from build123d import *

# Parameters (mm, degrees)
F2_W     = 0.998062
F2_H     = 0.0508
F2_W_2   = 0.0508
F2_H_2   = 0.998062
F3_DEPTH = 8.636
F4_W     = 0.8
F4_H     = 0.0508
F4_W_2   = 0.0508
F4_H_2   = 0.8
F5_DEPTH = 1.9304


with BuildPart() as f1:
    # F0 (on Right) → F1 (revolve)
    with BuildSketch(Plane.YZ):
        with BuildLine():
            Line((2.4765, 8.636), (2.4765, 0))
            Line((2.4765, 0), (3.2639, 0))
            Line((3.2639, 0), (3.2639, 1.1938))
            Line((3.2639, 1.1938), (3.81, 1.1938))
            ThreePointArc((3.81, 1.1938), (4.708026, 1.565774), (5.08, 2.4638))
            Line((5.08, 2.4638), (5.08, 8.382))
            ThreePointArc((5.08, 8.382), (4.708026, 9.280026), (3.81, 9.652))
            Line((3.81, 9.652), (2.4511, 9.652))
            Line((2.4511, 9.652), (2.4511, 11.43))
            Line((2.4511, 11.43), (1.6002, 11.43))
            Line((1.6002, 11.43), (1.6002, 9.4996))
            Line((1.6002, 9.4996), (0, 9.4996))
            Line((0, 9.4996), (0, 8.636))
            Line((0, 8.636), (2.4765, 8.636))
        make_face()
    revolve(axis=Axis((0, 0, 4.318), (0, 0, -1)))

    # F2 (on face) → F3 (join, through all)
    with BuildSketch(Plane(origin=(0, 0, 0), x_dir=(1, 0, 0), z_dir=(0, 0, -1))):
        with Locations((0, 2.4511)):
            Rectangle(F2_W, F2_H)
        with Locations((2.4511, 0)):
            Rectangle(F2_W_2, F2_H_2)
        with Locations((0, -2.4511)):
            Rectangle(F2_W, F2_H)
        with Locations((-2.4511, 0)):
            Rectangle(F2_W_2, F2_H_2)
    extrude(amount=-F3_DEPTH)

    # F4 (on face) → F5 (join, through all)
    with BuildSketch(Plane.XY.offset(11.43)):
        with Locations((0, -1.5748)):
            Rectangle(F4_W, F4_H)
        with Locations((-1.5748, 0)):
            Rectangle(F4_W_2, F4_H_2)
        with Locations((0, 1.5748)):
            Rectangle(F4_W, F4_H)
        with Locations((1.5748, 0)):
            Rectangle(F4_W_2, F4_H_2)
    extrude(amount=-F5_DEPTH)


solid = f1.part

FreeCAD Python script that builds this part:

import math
import FreeCAD as App
import Part
import Sketcher
from FreeCAD import Vector
Q = App.Units.Quantity


def add_polygon(sketch, points):
    """Adds a closed chain of lines whose ends are joined by coincident constraints."""
    first, n = sketch.GeometryCount, len(points)
    for a, b in zip(points, points[1:] + points[:1]):
        sketch.addGeometry(Part.LineSegment(App.Vector(*a, 0), App.Vector(*b, 0)), False)
    for i in range(n):
        sketch.addConstraint(Sketcher.Constraint("Coincident", first + i, 2, first + (i + 1) % n, 1))

doc = App.newDocument("Part")
body = doc.addObject("PartDesign::Body", "Body")

sketch1 = body.newObject("Sketcher::SketchObject", "Sketch")
sketch1.AttachmentSupport = (doc.getObject("YZ_Plane"), [""])
sketch1.MapMode = "FlatFace"
sketch1.addGeometry(Part.LineSegment(Vector(2.5, 8.6, 0), Vector(2.5, 0, 0)), False)
sketch1.addGeometry(Part.LineSegment(Vector(2.5, 0, 0), Vector(3.3, 0, 0)), False)
sketch1.addGeometry(Part.LineSegment(Vector(3.3, 0, 0), Vector(3.3, 1.2, 0)), False)
sketch1.addGeometry(Part.LineSegment(Vector(3.3, 1.2, 0), Vector(3.8, 1.2, 0)), False)
sketch1.addGeometry(Part.ArcOfCircle(Part.Circle(Vector(3.8, 2.5, 0), Vector(0, 0, 1), 1.3), math.radians(-90), math.radians(0)), False)
sketch1.addGeometry(Part.LineSegment(Vector(5.1, 2.5, 0), Vector(5.1, 8.4, 0)), False)
sketch1.addGeometry(Part.ArcOfCircle(Part.Circle(Vector(3.8, 8.4, 0), Vector(0, 0, 1), 1.3), math.radians(0), math.radians(90)), False)
sketch1.addGeometry(Part.LineSegment(Vector(3.8, 9.7, 0), Vector(2.5, 9.7, 0)), False)
sketch1.addGeometry(Part.LineSegment(Vector(2.5, 9.7, 0), Vector(2.5, 11.4, 0)), False)
sketch1.addGeometry(Part.LineSegment(Vector(2.5, 11.4, 0), Vector(1.6, 11.4, 0)), False)
sketch1.addGeometry(Part.LineSegment(Vector(1.6, 11.4, 0), Vector(1.6, 9.5, 0)), False)
sketch1.addGeometry(Part.LineSegment(Vector(1.6, 9.5, 0), Vector(0, 9.5, 0)), False)
sketch1.addGeometry(Part.LineSegment(Vector(0, 9.5, 0), Vector(0, 8.6, 0)), False)
sketch1.addGeometry(Part.LineSegment(Vector(0, 8.6, 0), Vector(2.5, 8.6, 0)), False)
sketch1.addConstraint(Sketcher.Constraint("Coincident", 0, 2, 1, 1))
sketch1.addConstraint(Sketcher.Constraint("Coincident", 1, 2, 2, 1))
sketch1.addConstraint(Sketcher.Constraint("Coincident", 2, 2, 3, 1))
sketch1.addConstraint(Sketcher.Constraint("Tangent", 3, 2, 4, 1))
sketch1.addConstraint(Sketcher.Constraint("Tangent", 4, 2, 5, 1))
sketch1.addConstraint(Sketcher.Constraint("Tangent", 5, 2, 6, 1))
sketch1.addConstraint(Sketcher.Constraint("Tangent", 6, 2, 7, 1))
sketch1.addConstraint(Sketcher.Constraint("Coincident", 7, 2, 8, 1))
sketch1.addConstraint(Sketcher.Constraint("Coincident", 8, 2, 9, 1))
sketch1.addConstraint(Sketcher.Constraint("Coincident", 9, 2, 10, 1))
sketch1.addConstraint(Sketcher.Constraint("Coincident", 10, 2, 11, 1))
sketch1.addConstraint(Sketcher.Constraint("Coincident", 11, 2, 12, 1))
sketch1.addConstraint(Sketcher.Constraint("Coincident", 12, 2, 13, 1))
sketch1.addConstraint(Sketcher.Constraint("Coincident", 13, 2, 0, 1))
sketch1.addConstraint(Sketcher.Constraint("Vertical", 0))
sketch1.addConstraint(Sketcher.Constraint("Horizontal", 1))
sketch1.addConstraint(Sketcher.Constraint("Vertical", 2))
sketch1.addConstraint(Sketcher.Constraint("Horizontal", 3))
sketch1.addConstraint(Sketcher.Constraint("Vertical", 5))
sketch1.addConstraint(Sketcher.Constraint("Horizontal", 7))
sketch1.addConstraint(Sketcher.Constraint("Vertical", 8))
sketch1.addConstraint(Sketcher.Constraint("Horizontal", 9))
sketch1.addConstraint(Sketcher.Constraint("Vertical", 10))
sketch1.addConstraint(Sketcher.Constraint("Horizontal", 11))
sketch1.addConstraint(Sketcher.Constraint("Vertical", 12))
sketch1.addConstraint(Sketcher.Constraint("Horizontal", 13))
sketch1.addConstraint(Sketcher.Constraint("Equal", 4, 6))
sketch1.addConstraint(Sketcher.Constraint("PointOnObject", 0, 2, -1))
sketch1.addConstraint(Sketcher.Constraint("PointOnObject", 11, 2, -2))
sketch1.addConstraint(Sketcher.Constraint("Radius", 4, Q("0.0499999 in")))
sketch1.addConstraint(Sketcher.Constraint("DistanceY", 0, 2, 0, 1, Q("0.34 in")))
sketch1.addConstraint(Sketcher.Constraint("DistanceY", 8, 1, 8, 2, Q("0.07 in")))
sketch1.addConstraint(Sketcher.Constraint("DistanceX", -1, 1, 4, 2, Q("0.2 in")))
sketch1.addConstraint(Sketcher.Constraint("DistanceX", 1, 1, 1, 2, Q("0.031 in")))
sketch1.addConstraint(Sketcher.Constraint("DistanceX", 11, 2, 11, 1, Q("0.063 in")))
sketch1.addConstraint(Sketcher.Constraint("DistanceY", 2, 1, 2, 2, Q("0.047 in")))
sketch1.addConstraint(Sketcher.Constraint("DistanceY", 5, 1, 5, 2, Q("0.233 in")))
sketch1.addConstraint(Sketcher.Constraint("DistanceY", 10, 2, 10, 1, Q("0.076 in")))
sketch1.addConstraint(Sketcher.Constraint("DistanceX", 3, 1, 3, 2, Q("0.0215 in")))
sketch1.addConstraint(Sketcher.Constraint("DistanceX", 7, 2, 7, 1, Q("0.0535 in")))
revolution = body.newObject("PartDesign::Revolution", "Revolution")
revolution.Profile = sketch1
revolution.ReferenceAxis = (sketch1, ["V_Axis"])
revolution.Angle = 360

sketch2 = body.newObject("Sketcher::SketchObject", "Sketch001")
sketch2.AttachmentSupport = (doc.getObject("XY_Plane"), [""])
sketch2.MapMode = "FlatFace"
add_polygon(sketch2, [(-0.5, -2.48), (-0.5, -2.43), (0.5, -2.43), (0.5, -2.48)])
add_polygon(sketch2, [(2.43, -0.5), (2.43, 0.5), (2.48, 0.5), (2.48, -0.5)])
add_polygon(sketch2, [(-0.5, 2.43), (-0.5, 2.48), (0.5, 2.48), (0.5, 2.43)])
add_polygon(sketch2, [(-2.48, -0.5), (-2.48, 0.5), (-2.43, 0.5), (-2.43, -0.5)])
sketch2.addConstraint(Sketcher.Constraint("Vertical", 0))
sketch2.addConstraint(Sketcher.Constraint("Horizontal", 1))
sketch2.addConstraint(Sketcher.Constraint("Vertical", 2))
sketch2.addConstraint(Sketcher.Constraint("Horizontal", 3))
sketch2.addConstraint(Sketcher.Constraint("Vertical", 4))
sketch2.addConstraint(Sketcher.Constraint("Horizontal", 5))
sketch2.addConstraint(Sketcher.Constraint("Vertical", 6))
sketch2.addConstraint(Sketcher.Constraint("Horizontal", 7))
sketch2.addConstraint(Sketcher.Constraint("Vertical", 8))
sketch2.addConstraint(Sketcher.Constraint("Horizontal", 9))
sketch2.addConstraint(Sketcher.Constraint("Vertical", 10))
sketch2.addConstraint(Sketcher.Constraint("Horizontal", 11))
sketch2.addConstraint(Sketcher.Constraint("Vertical", 12))
sketch2.addConstraint(Sketcher.Constraint("Horizontal", 13))
sketch2.addConstraint(Sketcher.Constraint("Vertical", 14))
sketch2.addConstraint(Sketcher.Constraint("Horizontal", 15))
sketch2.addConstraint(Sketcher.Constraint("Symmetric", 2, 2, 8, 2, -1, 1))
sketch2.addConstraint(Sketcher.Constraint("Symmetric", 0, 2, 10, 2, -1, 1))
sketch2.addConstraint(Sketcher.Constraint("Symmetric", 6, 2, 12, 2, -1, 1))
sketch2.addConstraint(Sketcher.Constraint("Symmetric", 4, 2, 14, 2, -1, 1))
sketch2.addConstraint(Sketcher.Constraint("Horizontal", 5, 2, 12, 2))
sketch2.addConstraint(Sketcher.Constraint("Vertical", 3, 2, 8, 2))
sketch2.addConstraint(Sketcher.Constraint("Equal", 15, 0))
sketch2.addConstraint(Sketcher.Constraint("Equal", 11, 4))
sketch2.addConstraint(Sketcher.Constraint("DistanceX", 5, 1, 5, 2, Q("0.002 in")))
sketch2.addConstraint(Sketcher.Constraint("DistanceY", 0, 2, 8, 2, Q("0.193 in")))
sketch2.addConstraint(Sketcher.Constraint("DistanceX", -1, 1, 4, 2, Q("0.0955 in")))
sketch2.addConstraint(Sketcher.Constraint("DistanceX", 1, 1, 1, 2, Q("0.998062 mm")))
pad1 = body.newObject("PartDesign::Pad", "Pad")
pad1.Profile = sketch2
pad1.Type = "UpToLast"

sketch3 = body.newObject("Sketcher::SketchObject", "Sketch002")
sketch3.AttachmentSupport = (doc.getObject("XY_Plane"), [""])
sketch3.MapMode = "FlatFace"
sketch3.AttachmentOffset = App.Placement(Vector(0, 0, 0.45 * 25.4), App.Rotation())
add_polygon(sketch3, [(-0.4, -1.55), (-0.4, -1.6), (0.4, -1.6), (0.4, -1.55)])
add_polygon(sketch3, [(-1.6, 0.4), (-1.6, -0.4), (-1.55, -0.4), (-1.55, 0.4)])
add_polygon(sketch3, [(-0.4, 1.6), (-0.4, 1.55), (0.4, 1.55), (0.4, 1.6)])
add_polygon(sketch3, [(1.55, 0.4), (1.55, -0.4), (1.6, -0.4), (1.6, 0.4)])
sketch3.addConstraint(Sketcher.Constraint("Vertical", 0))
sketch3.addConstraint(Sketcher.Constraint("Horizontal", 1))
sketch3.addConstraint(Sketcher.Constraint("Vertical", 2))
sketch3.addConstraint(Sketcher.Constraint("Horizontal", 3))
sketch3.addConstraint(Sketcher.Constraint("Vertical", 4))
sketch3.addConstraint(Sketcher.Constraint("Horizontal", 5))
sketch3.addConstraint(Sketcher.Constraint("Vertical", 6))
sketch3.addConstraint(Sketcher.Constraint("Horizontal", 7))
sketch3.addConstraint(Sketcher.Constraint("Vertical", 8))
sketch3.addConstraint(Sketcher.Constraint("Horizontal", 9))
sketch3.addConstraint(Sketcher.Constraint("Vertical", 10))
sketch3.addConstraint(Sketcher.Constraint("Horizontal", 11))
sketch3.addConstraint(Sketcher.Constraint("Vertical", 12))
sketch3.addConstraint(Sketcher.Constraint("Horizontal", 13))
sketch3.addConstraint(Sketcher.Constraint("Vertical", 14))
sketch3.addConstraint(Sketcher.Constraint("Horizontal", 15))
sketch3.addConstraint(Sketcher.Constraint("Symmetric", 2, 2, 8, 2, -1, 1))
sketch3.addConstraint(Sketcher.Constraint("Symmetric", 0, 2, 10, 2, -1, 1))
sketch3.addConstraint(Sketcher.Constraint("Symmetric", 6, 2, 12, 2, -1, 1))
sketch3.addConstraint(Sketcher.Constraint("Symmetric", 4, 2, 14, 2, -1, 1))
sketch3.addConstraint(Sketcher.Constraint("Horizontal", 5, 2, 12, 2))
sketch3.addConstraint(Sketcher.Constraint("Vertical", 3, 2, 8, 2))
sketch3.addConstraint(Sketcher.Constraint("Equal", 15, 0))
sketch3.addConstraint(Sketcher.Constraint("Equal", 11, 4))
sketch3.addConstraint(Sketcher.Constraint("DistanceX", 5, 1, 5, 2, Q("0.002 in")))
sketch3.addConstraint(Sketcher.Constraint("DistanceY", 0, 2, -1, 1, Q("0.063 in")))
sketch3.addConstraint(Sketcher.Constraint("DistanceX", 4, 2, -1, 1, Q("0.063 in")))
sketch3.addConstraint(Sketcher.Constraint("DistanceX", 1, 1, 1, 2, Q("0.8 mm")))
pad2 = body.newObject("PartDesign::Pad", "Pad001")
pad2.Profile = sketch3
pad2.Type = "UpToLast"
pad2.Reversed = True

doc.recompute()
